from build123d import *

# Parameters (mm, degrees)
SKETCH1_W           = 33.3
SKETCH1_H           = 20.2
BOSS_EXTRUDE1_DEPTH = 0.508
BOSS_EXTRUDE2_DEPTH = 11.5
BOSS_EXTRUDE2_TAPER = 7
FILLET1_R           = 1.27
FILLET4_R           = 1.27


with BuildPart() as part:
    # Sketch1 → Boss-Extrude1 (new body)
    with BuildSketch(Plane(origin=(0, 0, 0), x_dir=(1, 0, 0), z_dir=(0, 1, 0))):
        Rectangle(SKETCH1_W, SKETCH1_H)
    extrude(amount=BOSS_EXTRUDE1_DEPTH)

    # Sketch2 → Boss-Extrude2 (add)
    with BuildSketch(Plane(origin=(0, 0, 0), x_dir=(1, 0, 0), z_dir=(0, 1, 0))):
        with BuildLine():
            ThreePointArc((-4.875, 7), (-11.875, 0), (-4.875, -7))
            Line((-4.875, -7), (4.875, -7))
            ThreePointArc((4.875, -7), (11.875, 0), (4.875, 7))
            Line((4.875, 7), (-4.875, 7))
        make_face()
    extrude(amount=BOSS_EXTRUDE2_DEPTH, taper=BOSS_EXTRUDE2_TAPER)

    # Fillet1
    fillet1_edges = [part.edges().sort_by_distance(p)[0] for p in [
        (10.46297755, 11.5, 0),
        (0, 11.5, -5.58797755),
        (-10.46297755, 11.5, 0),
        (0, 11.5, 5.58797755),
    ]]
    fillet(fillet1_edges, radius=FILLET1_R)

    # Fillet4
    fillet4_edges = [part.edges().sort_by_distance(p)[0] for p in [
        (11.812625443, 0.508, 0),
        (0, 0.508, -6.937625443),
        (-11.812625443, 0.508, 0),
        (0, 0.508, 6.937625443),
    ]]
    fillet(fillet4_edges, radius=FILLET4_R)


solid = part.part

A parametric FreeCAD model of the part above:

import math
import FreeCAD as App
import Part
import Sketcher

V = App.Vector
Q = App.Units.Quantity


def edges_at(feature, points):
    """Names of the edges that pass closest to the given points."""
    edges = feature.Shape.Edges
    near = lambda p: min(range(len(edges)), key=lambda i: edges[i].distToShape(Part.Vertex(*p))[0])
    return sorted({f"Edge{near(p) + 1}" for p in points})

doc = App.newDocument("Part")
params = doc.addObject("Spreadsheet::Sheet", "Params")
for row, (alias, value) in enumerate([
    ("sketch1_width", "33.3 mm"),
    ("sketch1_height", "20.2 mm"),
    ("pad1_length", "0.508 mm"),
    ("sketch2_radius", "7 mm"),
    ("sketch2_width", "9.75 mm"),
    ("pad2_length", "11.5 mm"),
    ("pad2_taper", "-7 deg"),
    ("fillet_radius", "1.27 mm"),
    ("fillet2_radius", "1.27 mm"),
], start=1):
    params.set(f"A{row}", alias)
    params.set(f"B{row}", "=" + value)
    params.setAlias(f"B{row}", alias)

body = doc.addObject("PartDesign::Body", "Body")

# Sketch on XZ plane
sketch1 = body.newObject("Sketcher::SketchObject", "Sketch")
sketch1.AttachmentSupport = (doc.getObject("XZ_Plane"), [""])
sketch1.MapMode = "FlatFace"
sketch1.addGeometry(Part.LineSegment(V(-16.65, -10.1, 0), V(-16.65, 10.1, 0)), False)
sketch1.addGeometry(Part.LineSegment(V(-16.65, 10.1, 0), V(16.65, 10.1, 0)), False)
sketch1.addGeometry(Part.LineSegment(V(16.65, 10.1, 0), V(16.65, -10.1, 0)), False)
sketch1.addGeometry(Part.LineSegment(V(16.65, -10.1, 0), V(-16.65, -10.1, 0)), False)
sketch1.addConstraint(Sketcher.Constraint("Coincident", 0, 2, 1, 1))
sketch1.addConstraint(Sketcher.Constraint("Coincident", 1, 2, 2, 1))
sketch1.addConstraint(Sketcher.Constraint("Coincident", 2, 2, 3, 1))
sketch1.addConstraint(Sketcher.Constraint("Coincident", 3, 2, 0, 1))
sketch1.addConstraint(Sketcher.Constraint("Vertical", 0))
sketch1.addConstraint(Sketcher.Constraint("Horizontal", 1))
sketch1.addConstraint(Sketcher.Constraint("Vertical", 2))
sketch1.addConstraint(Sketcher.Constraint("Horizontal", 3))
sketch1.addConstraint(Sketcher.Constraint("Symmetric", 0, 2, 2, 2, -1, 1))
sketch1.addConstraint(Sketcher.Constraint("DistanceX", 1, 1, 1, 2, Q("33.3 mm")))
sketch1.addConstraint(Sketcher.Constraint("DistanceY", 0, 1, 0, 2, Q("20.2 mm")))
sketch1.setExpression("Constraints[9]", "Params.sketch1_width")
sketch1.setExpression("Constraints[10]", "Params.sketch1_height")
pad1 = body.newObject("PartDesign::Pad", "Pad")
pad1.Profile = sketch1
pad1.setExpression("Length", "Params.pad1_length")
pad1.Reversed = True

# Sketch on XZ plane
sketch2 = body.newObject("Sketcher::SketchObject", "Sketch001")
sketch2.AttachmentSupport = (doc.getObject("XZ_Plane"), [""])
sketch2.MapMode = "FlatFace"
sketch2.addGeometry(Part.ArcOfCircle(Part.Circle(V(-4.875, 0, 0), V(0, 0, 1), 7), math.radians(90), math.radians(270)), False)
sketch2.addGeometry(Part.LineSegment(V(-4.875, 7, 0), V(4.875, 7, 0)), False)
sketch2.addGeometry(Part.ArcOfCircle(Part.Circle(V(4.875, 0, 0), V(0, 0, 1), 7), math.radians(-90), math.radians(90)), False)
sketch2.addGeometry(Part.LineSegment(V(4.875, -7, 0), V(-4.875, -7, 0)), False)
sketch2.addConstraint(Sketcher.Constraint("Tangent", 0, 1, 1, 1))
sketch2.addConstraint(Sketcher.Constraint("Tangent", 1, 2, 2, 2))
sketch2.addConstraint(Sketcher.Constraint("Tangent", 2, 1, 3, 1))
sketch2.addConstraint(Sketcher.Constraint("Tangent", 3, 2, 0, 2))
sketch2.addConstraint(Sketcher.Constraint("Horizontal", 1))
sketch2.addConstraint(Sketcher.Constraint("Horizontal", 3))
sketch2.addConstraint(Sketcher.Constraint("Symmetric", 0, 3, 2, 3, -1, 1))
sketch2.addConstraint(Sketcher.Constraint("Radius", 0, Q("7 mm")))
sketch2.addConstraint(Sketcher.Constraint("DistanceX", 1, 1, 1, 2, Q("9.75 mm")))
sketch2.setExpression("Constraints[7]", "Params.sketch2_radius")
sketch2.setExpression("Constraints[8]", "Params.sketch2_width")
pad2 = body.newObject("PartDesign::Pad", "Pad001")
pad2.Profile = sketch2
pad2.setExpression("Length", "Params.pad2_length")
pad2.Reversed = True
pad2.setExpression("TaperAngle", "Params.pad2_taper")
doc.recompute()

fillet = body.newObject("PartDesign::Fillet", "Fillet")
fillet.Base = (pad2, edges_at(pad2, [
    (10.463, 11.5, 0),
    (0, 11.5, -5.588),
    (-10.463, 11.5, 0),
    (0, 11.5, 5.588),
]))
fillet.setExpression("Radius", "Params.fillet_radius")
doc.recompute()

fillet2 = body.newObject("PartDesign::Fillet", "Fillet001")
fillet2.Base = (fillet, edges_at(fillet, [
    (11.813, 0.508, 0),
    (0, 0.508, -6.938),
    (-11.813, 0.508, 0),
    (0, 0.508, 6.938),
]))
fillet2.setExpression("Radius", "Params.fillet2_radius")

doc.recompute()
